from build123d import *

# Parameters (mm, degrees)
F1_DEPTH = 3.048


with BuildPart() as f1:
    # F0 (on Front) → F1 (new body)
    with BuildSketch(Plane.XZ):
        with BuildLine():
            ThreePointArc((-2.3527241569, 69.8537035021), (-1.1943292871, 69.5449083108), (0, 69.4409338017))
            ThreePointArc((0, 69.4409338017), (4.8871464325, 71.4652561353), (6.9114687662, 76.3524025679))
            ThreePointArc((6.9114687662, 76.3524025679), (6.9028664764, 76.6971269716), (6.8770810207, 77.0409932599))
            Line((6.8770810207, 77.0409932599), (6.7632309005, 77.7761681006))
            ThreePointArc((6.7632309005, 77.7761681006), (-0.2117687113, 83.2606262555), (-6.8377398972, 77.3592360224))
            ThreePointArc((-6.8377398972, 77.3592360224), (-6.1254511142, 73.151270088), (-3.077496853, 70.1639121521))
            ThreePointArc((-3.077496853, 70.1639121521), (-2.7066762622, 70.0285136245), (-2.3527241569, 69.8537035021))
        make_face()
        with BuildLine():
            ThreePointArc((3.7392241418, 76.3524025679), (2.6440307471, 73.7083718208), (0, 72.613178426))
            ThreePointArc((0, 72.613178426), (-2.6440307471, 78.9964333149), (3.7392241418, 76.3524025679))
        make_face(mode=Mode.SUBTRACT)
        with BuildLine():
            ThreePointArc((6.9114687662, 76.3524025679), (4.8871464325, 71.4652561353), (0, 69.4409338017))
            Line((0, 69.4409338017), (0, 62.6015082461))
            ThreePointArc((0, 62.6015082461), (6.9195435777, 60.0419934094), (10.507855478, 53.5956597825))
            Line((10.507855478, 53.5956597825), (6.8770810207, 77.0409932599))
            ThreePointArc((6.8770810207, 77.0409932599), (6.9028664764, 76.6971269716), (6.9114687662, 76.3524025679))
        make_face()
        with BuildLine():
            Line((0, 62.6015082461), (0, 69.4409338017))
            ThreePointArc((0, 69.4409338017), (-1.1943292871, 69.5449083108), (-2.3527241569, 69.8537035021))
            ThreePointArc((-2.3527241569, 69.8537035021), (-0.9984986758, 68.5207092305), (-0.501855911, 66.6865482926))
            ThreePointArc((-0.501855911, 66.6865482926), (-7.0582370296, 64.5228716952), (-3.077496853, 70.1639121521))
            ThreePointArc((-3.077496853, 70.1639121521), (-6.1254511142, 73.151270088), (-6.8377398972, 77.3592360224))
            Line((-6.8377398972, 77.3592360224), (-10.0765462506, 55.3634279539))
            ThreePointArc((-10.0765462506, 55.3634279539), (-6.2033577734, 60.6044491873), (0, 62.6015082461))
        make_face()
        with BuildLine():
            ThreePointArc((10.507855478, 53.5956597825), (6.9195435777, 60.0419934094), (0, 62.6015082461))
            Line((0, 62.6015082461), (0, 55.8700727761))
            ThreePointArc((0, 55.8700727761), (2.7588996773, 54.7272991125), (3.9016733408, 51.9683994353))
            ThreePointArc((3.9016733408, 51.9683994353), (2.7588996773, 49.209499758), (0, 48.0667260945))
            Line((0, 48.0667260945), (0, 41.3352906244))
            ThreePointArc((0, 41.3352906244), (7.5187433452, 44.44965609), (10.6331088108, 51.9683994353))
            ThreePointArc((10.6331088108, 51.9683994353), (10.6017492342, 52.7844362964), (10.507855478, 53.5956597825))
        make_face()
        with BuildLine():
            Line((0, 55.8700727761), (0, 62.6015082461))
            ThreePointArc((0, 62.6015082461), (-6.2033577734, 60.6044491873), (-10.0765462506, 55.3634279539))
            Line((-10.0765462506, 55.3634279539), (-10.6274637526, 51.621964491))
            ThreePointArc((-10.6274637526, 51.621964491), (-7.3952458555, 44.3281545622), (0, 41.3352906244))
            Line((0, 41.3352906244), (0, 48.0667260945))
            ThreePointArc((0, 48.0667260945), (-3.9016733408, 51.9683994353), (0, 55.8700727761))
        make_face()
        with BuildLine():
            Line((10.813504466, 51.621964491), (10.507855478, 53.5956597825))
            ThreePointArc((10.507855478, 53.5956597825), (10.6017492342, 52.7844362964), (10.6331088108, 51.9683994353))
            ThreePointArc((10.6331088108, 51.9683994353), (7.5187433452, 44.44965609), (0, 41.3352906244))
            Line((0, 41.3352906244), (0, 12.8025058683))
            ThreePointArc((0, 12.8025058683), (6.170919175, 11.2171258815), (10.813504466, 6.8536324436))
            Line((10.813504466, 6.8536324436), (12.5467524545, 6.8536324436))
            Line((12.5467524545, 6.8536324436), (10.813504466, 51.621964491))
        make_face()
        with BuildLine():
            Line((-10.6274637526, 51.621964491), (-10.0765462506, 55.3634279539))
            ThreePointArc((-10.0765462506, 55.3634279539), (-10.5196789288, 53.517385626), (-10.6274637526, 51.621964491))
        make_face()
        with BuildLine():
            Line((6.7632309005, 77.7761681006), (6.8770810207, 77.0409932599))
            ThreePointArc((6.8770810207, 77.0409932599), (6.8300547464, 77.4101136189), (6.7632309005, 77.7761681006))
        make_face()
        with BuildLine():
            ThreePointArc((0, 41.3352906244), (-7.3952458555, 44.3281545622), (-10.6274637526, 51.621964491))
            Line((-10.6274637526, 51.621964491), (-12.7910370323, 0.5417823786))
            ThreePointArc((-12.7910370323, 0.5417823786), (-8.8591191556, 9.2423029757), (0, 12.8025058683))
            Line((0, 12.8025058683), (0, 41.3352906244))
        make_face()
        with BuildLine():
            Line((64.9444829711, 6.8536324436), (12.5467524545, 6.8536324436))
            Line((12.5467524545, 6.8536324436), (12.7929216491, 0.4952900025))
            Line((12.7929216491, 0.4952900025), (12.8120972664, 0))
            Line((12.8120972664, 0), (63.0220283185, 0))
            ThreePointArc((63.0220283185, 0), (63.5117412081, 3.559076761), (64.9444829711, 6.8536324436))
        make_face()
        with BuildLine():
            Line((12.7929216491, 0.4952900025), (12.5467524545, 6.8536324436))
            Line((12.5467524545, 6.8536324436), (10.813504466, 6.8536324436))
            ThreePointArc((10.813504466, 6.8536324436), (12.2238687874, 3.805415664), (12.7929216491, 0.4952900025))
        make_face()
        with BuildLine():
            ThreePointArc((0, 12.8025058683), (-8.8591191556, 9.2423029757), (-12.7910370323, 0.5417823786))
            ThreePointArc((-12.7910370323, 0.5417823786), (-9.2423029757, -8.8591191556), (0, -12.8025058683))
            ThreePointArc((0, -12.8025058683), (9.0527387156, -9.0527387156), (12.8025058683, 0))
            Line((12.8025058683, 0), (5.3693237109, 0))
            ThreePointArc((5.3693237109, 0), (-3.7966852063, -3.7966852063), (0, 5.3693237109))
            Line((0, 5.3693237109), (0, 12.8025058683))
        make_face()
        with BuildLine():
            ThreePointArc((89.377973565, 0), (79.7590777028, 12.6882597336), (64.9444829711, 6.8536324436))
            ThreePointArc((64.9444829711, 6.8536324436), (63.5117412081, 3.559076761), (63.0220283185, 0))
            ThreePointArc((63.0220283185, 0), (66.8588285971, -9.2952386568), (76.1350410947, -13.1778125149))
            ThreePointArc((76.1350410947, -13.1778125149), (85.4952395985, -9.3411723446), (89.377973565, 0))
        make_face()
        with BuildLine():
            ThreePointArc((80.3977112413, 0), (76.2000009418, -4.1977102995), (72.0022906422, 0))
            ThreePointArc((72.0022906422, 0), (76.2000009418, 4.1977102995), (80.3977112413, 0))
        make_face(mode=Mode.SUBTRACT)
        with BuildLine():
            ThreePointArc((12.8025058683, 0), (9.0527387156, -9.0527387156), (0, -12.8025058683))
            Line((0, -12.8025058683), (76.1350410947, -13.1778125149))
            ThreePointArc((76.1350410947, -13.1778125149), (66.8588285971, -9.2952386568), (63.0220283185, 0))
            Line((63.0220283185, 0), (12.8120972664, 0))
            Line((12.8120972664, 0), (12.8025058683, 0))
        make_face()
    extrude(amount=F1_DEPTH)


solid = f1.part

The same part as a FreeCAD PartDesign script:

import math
import FreeCAD as App
import Part
import Sketcher

V = App.Vector
Q = App.Units.Quantity

doc = App.newDocument("Part")
body = doc.addObject("PartDesign::Body", "Body")

sketch1 = body.newObject("Sketcher::SketchObject", "Sketch")
sketch1.AttachmentSupport = (doc.getObject("XZ_Plane"), [""])
sketch1.MapMode = "FlatFace"
sketch1.addGeometry([
    Part.LineSegment(V(10.507855, 53.59566, 0), V(6.877081, 77.040993, 0)),
    Part.ArcOfCircle(Part.Circle(V(0, 76.352403, 0), V(0, 0, 1), 6.911469), math.radians(5.717873), math.radians(11.88807)),
    Part.ArcOfCircle(Part.Circle(V(0, 76.352403, 0), V(0, 0, 1), 6.911469), math.radians(11.888069), math.radians(171.623587)),
    Part.LineSegment(V(-6.83774, 77.359236, 0), V(-10.076546, 55.363428, 0)),
    Part.ArcOfCircle(Part.Circle(V(0, 51.968399, 0), V(0, 0, 1), 10.633109), math.radians(161.380103), math.radians(181.867071)),
    Part.LineSegment(V(-10.627464, 51.621964, 0), V(-12.791037, 0.541782, 0)),
    Part.ArcOfCircle(Part.Circle(V(0, 0, 0), V(0, 0, 1), 12.802506), math.radians(177.574606), math.radians(270)),
    Part.LineSegment(V(0, -12.802506, 0), V(76.135041, -13.177813, 0)),
    Part.ArcOfCircle(Part.Circle(V(76.200001, 0, 0), V(0, 0, 1), 13.177973), math.radians(-90.282436), math.radians(0)),
    Part.ArcOfCircle(Part.Circle(V(76.200001, 0, 0), V(0, 0, 1), 13.177973), math.radians(0), math.radians(148.662217)),
    Part.LineSegment(V(64.944483, 6.853632, 0), V(12.546752, 6.853632, 0)),
    Part.LineSegment(V(12.546752, 6.853632, 0), V(10.813504, 51.621964, 0)),
    Part.LineSegment(V(10.813504, 51.621964, 0), V(10.507855, 53.59566, 0)),
    Part.LineSegment(V(12.792922, 0.49529, 0), V(12.812097, 0, 0)),
    Part.LineSegment(V(12.812097, 0, 0), V(5.369324, 0, 0)),
    Part.ArcOfCircle(Part.Circle(V(0, 0, 0), V(0, 0, 1), 5.369324), math.radians(90), math.radians(360)),
    Part.LineSegment(V(0, 5.369324, 0), V(0, 12.802506, 0)),
    Part.ArcOfCircle(Part.Circle(V(0, 0, 0), V(0, 0, 1), 12.802506), math.radians(32.366649), math.radians(90)),
    Part.ArcOfCircle(Part.Circle(V(0, 0, 0), V(0, 0, 1), 12.802506), math.radians(2.217153), math.radians(32.366649)),
    Part.ArcOfCircle(Part.Circle(V(76.200001, 0, 0), V(0, 0, 1), 4.19771), math.radians(0), math.radians(180)),
    Part.ArcOfCircle(Part.Circle(V(76.200001, 0, 0), V(0, 0, 1), 4.19771), math.radians(180), math.radians(360)),
    Part.ArcOfCircle(Part.Circle(V(0, 51.968399, 0), V(0, 0, 1), 3.901673), math.radians(0), math.radians(90)),
    Part.ArcOfCircle(Part.Circle(V(0, 51.968399, 0), V(0, 0, 1), 3.901673), math.radians(-90), math.radians(0)),
    Part.ArcOfCircle(Part.Circle(V(0, 51.968399, 0), V(0, 0, 1), 3.901673), math.radians(90), math.radians(270)),
    Part.ArcOfCircle(Part.Circle(V(-4.137065, 66.686548, 0), V(0, 0, 1), 3.635209), math.radians(60.603565), math.radians(73.053792)),
    Part.ArcOfCircle(Part.Circle(V(-4.137065, 66.686548, 0), V(0, 0, 1), 3.635209), math.radians(0), math.radians(60.603565)),
    Part.ArcOfCircle(Part.Circle(V(-4.137065, 66.686548, 0), V(0, 0, 1), 3.635209), math.radians(73.053792), math.radians(360)),
    Part.ArcOfCircle(Part.Circle(V(0, 76.352403, 0), V(0, 0, 1), 3.739224), math.radians(0), math.radians(270)),
    Part.ArcOfCircle(Part.Circle(V(0, 76.352403, 0), V(0, 0, 1), 3.739224), math.radians(-90), math.radians(0)),
], False)
sketch1.addConstraint([
    Sketcher.Constraint("Coincident", 0, 2, 1, 1),
    Sketcher.Constraint("Tangent", 1, 2, 2, 1),
    Sketcher.Constraint("Tangent", 2, 2, 3, 1),
    Sketcher.Constraint("Coincident", 3, 2, 4, 1),
    Sketcher.Constraint("Coincident", 4, 2, 5, 1),
    Sketcher.Constraint("Tangent", 5, 2, 6, 1),
    Sketcher.Constraint("Coincident", 6, 2, 7, 1),
    Sketcher.Constraint("Tangent", 7, 2, 8, 1),
    Sketcher.Constraint("Tangent", 8, 2, 9, 1),
    Sketcher.Constraint("Coincident", 9, 2, 10, 1),
    Sketcher.Constraint("Coincident", 10, 2, 11, 1),
    Sketcher.Constraint("Coincident", 11, 2, 12, 1),
    Sketcher.Constraint("Coincident", 12, 2, 0, 1),
    Sketcher.Constraint("Coincident", 13, 2, 14, 1),
    Sketcher.Constraint("Coincident", 14, 2, 15, 2),
    Sketcher.Constraint("Coincident", 15, 1, 16, 1),
    Sketcher.Constraint("Coincident", 16, 2, 17, 2),
    Sketcher.Constraint("Tangent", 17, 1, 18, 2),
    Sketcher.Constraint("Tangent", 18, 1, 13, 1),
    Sketcher.Constraint("Tangent", 19, 1, 20, 2),
    Sketcher.Constraint("Coincident", 20, 1, 19, 2),
    Sketcher.Constraint("Tangent", 21, 1, 22, 2),
    Sketcher.Constraint("Tangent", 22, 1, 23, 2),
    Sketcher.Constraint("Tangent", 23, 1, 21, 2),
    Sketcher.Constraint("Tangent", 24, 1, 25, 2),
    Sketcher.Constraint("Tangent", 25, 1, 26, 2),
    Sketcher.Constraint("Tangent", 26, 1, 24, 2),
    Sketcher.Constraint("Tangent", 27, 1, 28, 2),
    Sketcher.Constraint("Coincident", 28, 1, 27, 2),
    Sketcher.Constraint("Horizontal", 10),
    Sketcher.Constraint("Horizontal", 14),
    Sketcher.Constraint("Vertical", 16),
    Sketcher.Constraint("Coincident", 6, 3, -1, 1),
    Sketcher.Constraint("Coincident", 15, 3, -1, 1),
    Sketcher.Constraint("Coincident", 17, 3, -1, 1),
    Sketcher.Constraint("Coincident", 19, 3, 8, 3),
    Sketcher.Constraint("Coincident", 21, 3, 4, 3),
    Sketcher.Constraint("Coincident", 27, 3, 1, 3),
    Sketcher.Constraint("Equal", 1, 2),
    Sketcher.Constraint("Equal", 8, 9),
    Sketcher.Constraint("Equal", 6, 17),
    Sketcher.Constraint("Equal", 17, 18),
    Sketcher.Constraint("PointOnObject", 1, 3, -2),
    Sketcher.Constraint("PointOnObject", 4, 3, -2),
    Sketcher.Constraint("PointOnObject", 8, 3, -1),
    Sketcher.Constraint("PointOnObject", 6, 2, -2),
    Sketcher.Constraint("PointOnObject", 8, 2, -1),
    Sketcher.Constraint("PointOnObject", 13, 2, -1),
    Sketcher.Constraint("PointOnObject", 15, 1, -2),
    Sketcher.Constraint("PointOnObject", 19, 1, -1),
    Sketcher.Constraint("PointOnObject", 20, 1, -1),
    Sketcher.Constraint("PointOnObject", 22, 1, -2),
    Sketcher.Constraint("PointOnObject", 23, 1, -2),
    Sketcher.Constraint("PointOnObject", 28, 1, -2),
    Sketcher.Constraint("Parallel", 0, 12),
    Sketcher.Constraint("Parallel", 11, 13),
    Sketcher.Constraint("Horizontal", 4, 2, 11, 2),
    Sketcher.Constraint("Horizontal", 10, 2, 17, 1),
    Sketcher.Constraint("Horizontal", 23, 3, 21, 1),
    Sketcher.Constraint("Horizontal", 26, 3, 25, 1),
    Sketcher.Constraint("Horizontal", 28, 3, 27, 1),
    Sketcher.Constraint("Vertical", 11, 2, 17, 1),
    Sketcher.Constraint("DistanceX", -1, 1, 8, 3, Q("3 in")),
    Sketcher.Constraint("DistanceY", 4, 3, 2, 3, Q("0.9600001 in")),
    Sketcher.Constraint("DistanceY", -1, 1, 1, 3, Q("3.0060001 in")),
    Sketcher.Constraint("Radius", 1, Q("6.911469 mm")),
    Sketcher.Constraint("Radius", 4, Q("10.633109 mm")),
    Sketcher.Constraint("Radius", 19, Q("4.19771 mm")),
    Sketcher.Constraint("Radius", 24, Q("3.635209 mm")),
    Sketcher.Constraint("Radius", 6, Q("12.802506 mm")),
    Sketcher.Constraint("Radius", 8, Q("13.177973 mm")),
    Sketcher.Constraint("Radius", 15, Q("5.369324 mm")),
    Sketcher.Constraint("Radius", 21, Q("3.901673 mm")),
    Sketcher.Constraint("Radius", 27, Q("3.739224 mm")),
    Sketcher.Constraint("Distance", 0, Q("23.724801 mm")),
    Sketcher.Constraint("DistanceX", 10, 2, 10, 1, Q("52.397731 mm")),
    Sketcher.Constraint("DistanceY", 24, 1, 2, 3, Q("6.498699 mm")),
    Sketcher.Constraint("Distance", 3, Q("22.232981 mm")),
    Sketcher.Constraint("Distance", 11, Q("44.801872 mm")),
    Sketcher.Constraint("Distance", 12, Q("1.997222 mm")),
    Sketcher.Constraint("Distance", 13, Q("0.495661 mm")),
    Sketcher.Constraint("DistanceY", -1, 1, 24, 3, Q("66.686548 mm")),
    Sketcher.Constraint("DistanceX", -1, 1, 1, 2, Q("6.763231 mm")),
    Sketcher.Constraint("DistanceX", 3, 2, 24, 3, Q("5.939481 mm")),
    Sketcher.Constraint("DistanceY", 24, 1, 26, 1, Q("0.310209 mm")),
])
pad1 = body.newObject("PartDesign::Pad", "Pad")
pad1.Profile = sketch1
pad1.Length = Q("0.12 in")

doc.recompute()
